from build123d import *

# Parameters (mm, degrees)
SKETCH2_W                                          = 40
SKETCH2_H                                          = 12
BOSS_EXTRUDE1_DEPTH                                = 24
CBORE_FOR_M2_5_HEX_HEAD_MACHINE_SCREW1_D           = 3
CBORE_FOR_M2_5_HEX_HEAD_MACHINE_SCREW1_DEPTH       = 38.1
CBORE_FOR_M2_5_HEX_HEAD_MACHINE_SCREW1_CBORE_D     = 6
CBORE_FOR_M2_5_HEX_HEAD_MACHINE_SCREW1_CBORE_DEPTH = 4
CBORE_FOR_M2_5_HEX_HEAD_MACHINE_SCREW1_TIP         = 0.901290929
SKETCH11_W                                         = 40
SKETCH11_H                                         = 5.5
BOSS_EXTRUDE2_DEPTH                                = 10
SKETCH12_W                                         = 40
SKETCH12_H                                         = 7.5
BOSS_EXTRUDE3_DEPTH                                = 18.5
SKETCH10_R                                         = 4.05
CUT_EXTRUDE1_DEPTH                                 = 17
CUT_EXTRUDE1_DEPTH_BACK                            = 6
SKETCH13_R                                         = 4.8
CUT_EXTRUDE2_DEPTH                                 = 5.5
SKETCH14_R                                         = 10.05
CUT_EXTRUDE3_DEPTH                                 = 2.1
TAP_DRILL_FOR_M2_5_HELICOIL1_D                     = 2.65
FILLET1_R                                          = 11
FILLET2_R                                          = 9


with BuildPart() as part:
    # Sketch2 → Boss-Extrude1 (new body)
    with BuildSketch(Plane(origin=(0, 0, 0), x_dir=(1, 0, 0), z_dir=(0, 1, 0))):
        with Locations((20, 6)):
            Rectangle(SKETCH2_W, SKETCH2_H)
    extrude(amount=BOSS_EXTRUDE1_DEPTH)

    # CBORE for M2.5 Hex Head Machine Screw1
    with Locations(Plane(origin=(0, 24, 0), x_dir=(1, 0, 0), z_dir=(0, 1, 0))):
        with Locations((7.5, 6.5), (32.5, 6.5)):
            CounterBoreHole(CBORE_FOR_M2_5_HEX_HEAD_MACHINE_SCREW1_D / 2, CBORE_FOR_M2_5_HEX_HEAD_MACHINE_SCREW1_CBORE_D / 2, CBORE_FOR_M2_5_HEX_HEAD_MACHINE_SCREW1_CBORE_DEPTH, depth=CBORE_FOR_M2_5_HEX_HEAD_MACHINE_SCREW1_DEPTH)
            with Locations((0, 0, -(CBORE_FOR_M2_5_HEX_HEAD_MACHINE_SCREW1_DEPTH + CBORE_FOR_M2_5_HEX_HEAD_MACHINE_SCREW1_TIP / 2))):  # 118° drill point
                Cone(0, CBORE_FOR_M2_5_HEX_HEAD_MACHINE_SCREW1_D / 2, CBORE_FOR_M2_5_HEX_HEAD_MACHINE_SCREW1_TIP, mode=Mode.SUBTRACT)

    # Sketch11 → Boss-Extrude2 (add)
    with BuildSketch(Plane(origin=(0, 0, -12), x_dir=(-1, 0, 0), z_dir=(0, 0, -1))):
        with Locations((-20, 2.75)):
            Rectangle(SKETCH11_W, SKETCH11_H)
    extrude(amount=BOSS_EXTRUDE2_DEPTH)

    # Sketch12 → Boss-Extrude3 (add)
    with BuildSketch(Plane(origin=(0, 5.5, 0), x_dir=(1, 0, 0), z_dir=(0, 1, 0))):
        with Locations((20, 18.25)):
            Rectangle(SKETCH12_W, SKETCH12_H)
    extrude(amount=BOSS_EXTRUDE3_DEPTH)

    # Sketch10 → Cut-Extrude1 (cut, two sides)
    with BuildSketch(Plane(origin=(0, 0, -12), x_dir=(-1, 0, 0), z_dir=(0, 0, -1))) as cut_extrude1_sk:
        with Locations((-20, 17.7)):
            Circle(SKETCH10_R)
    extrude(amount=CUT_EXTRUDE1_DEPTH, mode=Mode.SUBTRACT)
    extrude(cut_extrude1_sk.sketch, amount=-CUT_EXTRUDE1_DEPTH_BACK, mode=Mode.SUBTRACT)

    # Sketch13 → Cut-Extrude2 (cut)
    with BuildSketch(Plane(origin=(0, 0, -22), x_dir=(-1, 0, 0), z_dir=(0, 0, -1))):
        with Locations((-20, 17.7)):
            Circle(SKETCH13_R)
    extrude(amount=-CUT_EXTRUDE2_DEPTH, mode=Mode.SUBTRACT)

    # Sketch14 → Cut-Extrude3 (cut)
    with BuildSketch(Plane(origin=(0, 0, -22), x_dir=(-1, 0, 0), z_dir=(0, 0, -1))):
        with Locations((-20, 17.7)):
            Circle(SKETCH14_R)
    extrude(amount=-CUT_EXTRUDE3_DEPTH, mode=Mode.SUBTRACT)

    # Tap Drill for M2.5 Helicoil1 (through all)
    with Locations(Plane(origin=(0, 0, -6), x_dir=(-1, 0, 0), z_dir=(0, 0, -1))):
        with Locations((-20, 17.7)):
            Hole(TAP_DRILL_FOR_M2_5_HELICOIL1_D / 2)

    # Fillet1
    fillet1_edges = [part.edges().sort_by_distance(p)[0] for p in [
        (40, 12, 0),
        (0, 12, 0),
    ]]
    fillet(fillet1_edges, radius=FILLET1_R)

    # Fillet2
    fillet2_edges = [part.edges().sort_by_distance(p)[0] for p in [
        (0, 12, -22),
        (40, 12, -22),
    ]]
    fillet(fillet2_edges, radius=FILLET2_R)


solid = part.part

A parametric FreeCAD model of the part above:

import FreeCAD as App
import Part
import Sketcher


def edges_at(feature, points):
    """Names of the edges that pass closest to the given points."""
    edges = feature.Shape.Edges
    near = lambda p: min(range(len(edges)), key=lambda i: edges[i].distToShape(Part.Vertex(*p))[0])
    return sorted({f"Edge{near(p) + 1}" for p in points})

doc = App.newDocument("Part")
params = doc.addObject("Spreadsheet::Sheet", "Params")
for row, (alias, value) in enumerate([
    ("sketch1_width", "40 mm"),
    ("sketch1_height", "12 mm"),
    ("pad1_length", "24 mm"),
    ("sketch2_diameter", "3 mm"),
    ("hole_diameter", "3 mm"),
    ("hole_depth", "38.1 mm"),
    ("hole_cbore_diameter", "6 mm"),
    ("hole_cbore_depth", "4 mm"),
    ("sketch3_width", "40 mm"),
    ("sketch3_height", "5.5 mm"),
    ("pad2_length", "10 mm"),
    ("sketch4_width", "40 mm"),
    ("sketch4_height", "7.5 mm"),
    ("pad3_length", "18.5 mm"),
    ("sketch5_diameter", "8.1 mm"),
    ("pocket1_length", "17 mm"),
    ("pocket1_length2", "6 mm"),
    ("sketch6_diameter", "9.6 mm"),
    ("pocket2_length", "5.5 mm"),
    ("sketch7_diameter", "20.1 mm"),
    ("pocket3_length", "2.1 mm"),
    ("sketch8_diameter", "2.65 mm"),
    ("hole2_diameter", "2.65 mm"),
    ("fillet_radius", "11 mm"),
    ("fillet2_radius", "9 mm"),
], start=1):
    params.set(f"A{row}", alias)
    params.set(f"B{row}", "=" + value)
    params.setAlias(f"B{row}", alias)

body = doc.addObject("PartDesign::Body", "Body")

# Sketch on XZ plane
sketch1 = doc.addObject("Sketcher::SketchObject", "Sketch")
body.addObject(sketch1)
sketch1.AttachmentSupport = (doc.XZ_Plane, [""])
sketch1.MapMode = "FlatFace"
sketch1.addGeometry([
    Part.LineSegment(App.Vector(0, -12, 0), App.Vector(0, 0, 0)),
    Part.LineSegment(App.Vector(0, 0, 0), App.Vector(40, 0, 0)),
    Part.LineSegment(App.Vector(40, 0, 0), App.Vector(40, -12, 0)),
    Part.LineSegment(App.Vector(40, -12, 0), App.Vector(0, -12, 0)),
], False)
sketch1.addConstraint([
    Sketcher.Constraint("Coincident", 0, 2, 1, 1),
    Sketcher.Constraint("Coincident", 1, 2, 2, 1),
    Sketcher.Constraint("Coincident", 2, 2, 3, 1),
    Sketcher.Constraint("Coincident", 3, 2, 0, 1),
    Sketcher.Constraint("Vertical", 0),
    Sketcher.Constraint("Horizontal", 1),
    Sketcher.Constraint("Vertical", 2),
    Sketcher.Constraint("Horizontal", 3),
    Sketcher.Constraint("Coincident", 0, 2, -1, 1),
    Sketcher.Constraint("DistanceX", 1, 1, 1, 2, 40.0),
    Sketcher.Constraint("DistanceY", 0, 1, 0, 2, 12.0),
])
sketch1.setExpression("Constraints[9]", "Params.sketch1_width")
sketch1.setExpression("Constraints[10]", "Params.sketch1_height")
pad1 = doc.addObject("PartDesign::Pad", "Pad")
body.addObject(pad1)
pad1.Profile = sketch1
pad1.setExpression("Length", "Params.pad1_length")
pad1.Reversed = True

# Sketch on XZ plane
sketch2 = doc.addObject("Sketcher::SketchObject", "Sketch001")
body.addObject(sketch2)
sketch2.AttachmentSupport = (doc.XZ_Plane, [""])
sketch2.MapMode = "FlatFace"
sketch2.AttachmentOffset = App.Placement(App.Vector(0, 0, -24), App.Rotation())
sketch2.addGeometry([
    Part.Circle(App.Vector(7.5, -6.5, 0), App.Vector(0, 0, 1), 1.5),
    Part.Circle(App.Vector(32.5, -6.5, 0), App.Vector(0, 0, 1), 1.5),
], False)
sketch2.addConstraint([
    Sketcher.Constraint("Equal", 0, 1),
    Sketcher.Constraint("Horizontal", 0, 3, 1, 3),
    Sketcher.Constraint("Diameter", 0, 3.0),
    Sketcher.Constraint("DistanceX", 0, 3, 1, 3, 25.0),
    Sketcher.Constraint("DistanceX", -1, 1, 0, 3, 7.5),
    Sketcher.Constraint("DistanceY", 0, 3, -1, 1, 6.5),
])
sketch2.setExpression("Constraints[2]", "Params.sketch2_diameter")
doc.recompute()
hole = doc.addObject("PartDesign::Hole", "Hole")
body.addObject(hole)
hole.Profile = sketch2
hole.ThreadType = "None"
hole.setExpression("Diameter", "Params.hole_diameter")
hole.DepthType = "Dimension"
hole.setExpression("Depth", "Params.hole_depth")
hole.DrillPoint = "Angled"
hole.DrillPointAngle = 118
hole.HoleCutType = "Counterbore"
hole.setExpression("HoleCutDiameter", "Params.hole_cbore_diameter")
hole.setExpression("HoleCutDepth", "Params.hole_cbore_depth")
hole.Reversed = True

# Sketch on XY plane
sketch3 = doc.addObject("Sketcher::SketchObject", "Sketch002")
body.addObject(sketch3)
sketch3.AttachmentSupport = (doc.XY_Plane, [""])
sketch3.MapMode = "FlatFace"
sketch3.AttachmentOffset = App.Placement(App.Vector(0, 0, -12), App.Rotation())
sketch3.addGeometry([
    Part.LineSegment(App.Vector(40, 6, 0), App.Vector(40, 0, 0)),
    Part.LineSegment(App.Vector(40, 0, 0), App.Vector(0, 0, 0)),
    Part.LineSegment(App.Vector(0, 0, 0), App.Vector(0, 6, 0)),
    Part.LineSegment(App.Vector(0, 6, 0), App.Vector(40, 6, 0)),
], False)
sketch3.addConstraint([
    Sketcher.Constraint("Coincident", 0, 2, 1, 1),
    Sketcher.Constraint("Coincident", 1, 2, 2, 1),
    Sketcher.Constraint("Coincident", 2, 2, 3, 1),
    Sketcher.Constraint("Coincident", 3, 2, 0, 1),
    Sketcher.Constraint("Vertical", 0),
    Sketcher.Constraint("Horizontal", 1),
    Sketcher.Constraint("Vertical", 2),
    Sketcher.Constraint("Horizontal", 3),
    Sketcher.Constraint("Coincident", 1, 2, -1, 1),
    Sketcher.Constraint("DistanceX", 1, 2, 1, 1, 40.0),
    Sketcher.Constraint("DistanceY", 0, 2, 0, 1, 5.5),
])
sketch3.setExpression("Constraints[9]", "Params.sketch3_width")
sketch3.setExpression("Constraints[10]", "Params.sketch3_height")
pad2 = doc.addObject("PartDesign::Pad", "Pad001")
body.addObject(pad2)
pad2.Profile = sketch3
pad2.setExpression("Length", "Params.pad2_length")
pad2.Reversed = True

# Sketch on XZ plane
sketch4 = doc.addObject("Sketcher::SketchObject", "Sketch003")
body.addObject(sketch4)
sketch4.AttachmentSupport = (doc.XZ_Plane, [""])
sketch4.MapMode = "FlatFace"
sketch4.AttachmentOffset = App.Placement(App.Vector(0, 0, -5.5), App.Rotation())
sketch4.addGeometry([
    Part.LineSegment(App.Vector(0, -22, 0), App.Vector(0, -14, 0)),
    Part.LineSegment(App.Vector(0, -14, 0), App.Vector(40, -14, 0)),
    Part.LineSegment(App.Vector(40, -14, 0), App.Vector(40, -22, 0)),
    Part.LineSegment(App.Vector(40, -22, 0), App.Vector(0, -22, 0)),
], False)
sketch4.addConstraint([
    Sketcher.Constraint("Coincident", 0, 2, 1, 1),
    Sketcher.Constraint("Coincident", 1, 2, 2, 1),
    Sketcher.Constraint("Coincident", 2, 2, 3, 1),
    Sketcher.Constraint("Coincident", 3, 2, 0, 1),
    Sketcher.Constraint("Vertical", 0),
    Sketcher.Constraint("Horizontal", 1),
    Sketcher.Constraint("Vertical", 2),
    Sketcher.Constraint("Horizontal", 3),
    Sketcher.Constraint("PointOnObject", 0, 2, -2),
    Sketcher.Constraint("DistanceX", 1, 1, 1, 2, 40.0),
    Sketcher.Constraint("DistanceY", 0, 1, 0, 2, 7.5),
    Sketcher.Constraint("DistanceY", 2, 2, -1, 1, 22.0),
])
sketch4.setExpression("Constraints[9]", "Params.sketch4_width")
sketch4.setExpression("Constraints[10]", "Params.sketch4_height")
pad3 = doc.addObject("PartDesign::Pad", "Pad002")
body.addObject(pad3)
pad3.Profile = sketch4
pad3.setExpression("Length", "Params.pad3_length")
pad3.Reversed = True

# Sketch on XY plane
sketch5 = doc.addObject("Sketcher::SketchObject", "Sketch004")
body.addObject(sketch5)
sketch5.AttachmentSupport = (doc.XY_Plane, [""])
sketch5.MapMode = "FlatFace"
sketch5.AttachmentOffset = App.Placement(App.Vector(0, 0, -12), App.Rotation())
sketch5.addGeometry(Part.Circle(App.Vector(20, 17.7, 0), App.Vector(0, 0, 1), 4), False)
sketch5.addConstraint([
    Sketcher.Constraint("Diameter", 0, 8.1),
    Sketcher.Constraint("DistanceX", -1, 1, 0, 3, 20.0),
    Sketcher.Constraint("DistanceY", -1, 1, 0, 3, 17.7),
])
sketch5.setExpression("Constraints[0]", "Params.sketch5_diameter")
pocket1 = doc.addObject("PartDesign::Pocket", "Pocket")
body.addObject(pocket1)
pocket1.Profile = sketch5
pocket1.Type = "TwoLengths"
pocket1.setExpression("Length", "Params.pocket1_length")
pocket1.setExpression("Length2", "Params.pocket1_length2")

# Sketch on XY plane
sketch6 = doc.addObject("Sketcher::SketchObject", "Sketch005")
body.addObject(sketch6)
sketch6.AttachmentSupport = (doc.XY_Plane, [""])
sketch6.MapMode = "FlatFace"
sketch6.AttachmentOffset = App.Placement(App.Vector(0, 0, -22), App.Rotation())
sketch6.addGeometry(Part.Circle(App.Vector(20, 17.7, 0), App.Vector(0, 0, 1), 4.8), False)
sketch6.addConstraint([
    Sketcher.Constraint("Diameter", 0, 9.6),
    Sketcher.Constraint("DistanceX", -1, 1, 0, 3, 20.0),
    Sketcher.Constraint("DistanceY", -1, 1, 0, 3, 17.7),
])
sketch6.setExpression("Constraints[0]", "Params.sketch6_diameter")
pocket2 = doc.addObject("PartDesign::Pocket", "Pocket001")
body.addObject(pocket2)
pocket2.Profile = sketch6
pocket2.setExpression("Length", "Params.pocket2_length")
pocket2.Reversed = True

# Sketch on XY plane
sketch7 = doc.addObject("Sketcher::SketchObject", "Sketch006")
body.addObject(sketch7)
sketch7.AttachmentSupport = (doc.XY_Plane, [""])
sketch7.MapMode = "FlatFace"
sketch7.AttachmentOffset = App.Placement(App.Vector(0, 0, -22), App.Rotation())
sketch7.addGeometry(Part.Circle(App.Vector(20, 18, 0), App.Vector(0, 0, 1), 10), False)
sketch7.addConstraint([
    Sketcher.Constraint("Diameter", 0, 20.1),
    Sketcher.Constraint("DistanceX", -1, 1, 0, 3, 20.0),
    Sketcher.Constraint("DistanceY", -1, 1, 0, 3, 17.7),
])
sketch7.setExpression("Constraints[0]", "Params.sketch7_diameter")
pocket3 = doc.addObject("PartDesign::Pocket", "Pocket002")
body.addObject(pocket3)
pocket3.Profile = sketch7
pocket3.setExpression("Length", "Params.pocket3_length")
pocket3.Reversed = True

# Sketch on XY plane
sketch8 = doc.addObject("Sketcher::SketchObject", "Sketch007")
body.addObject(sketch8)
sketch8.AttachmentSupport = (doc.XY_Plane, [""])
sketch8.MapMode = "FlatFace"
sketch8.AttachmentOffset = App.Placement(App.Vector(0, 0, -6), App.Rotation())
sketch8.addGeometry(Part.Circle(App.Vector(20, 17.7, 0), App.Vector(0, 0, 1), 1.3), False)
sketch8.addConstraint([
    Sketcher.Constraint("Diameter", 0, 2.65),
    Sketcher.Constraint("DistanceX", -1, 1, 0, 3, 20.0),
    Sketcher.Constraint("DistanceY", -1, 1, 0, 3, 17.7),
])
sketch8.setExpression("Constraints[0]", "Params.sketch8_diameter")
doc.recompute()
hole2 = doc.addObject("PartDesign::Hole", "Hole001")
body.addObject(hole2)
hole2.Profile = sketch8
hole2.ThreadType = "None"
hole2.setExpression("Diameter", "Params.hole2_diameter")
hole2.DepthType = "ThroughAll"
hole2.Reversed = True
doc.recompute()

fillet = doc.addObject("PartDesign::Fillet", "Fillet")
body.addObject(fillet)
fillet.Base = (hole2, edges_at(hole2, [(40, 12, 0), (0, 12, 0)]))
fillet.setExpression("Radius", "Params.fillet_radius")
doc.recompute()

fillet2 = doc.addObject("PartDesign::Fillet", "Fillet001")
body.addObject(fillet2)
fillet2.Base = (fillet, edges_at(fillet, [(0, 12, -22), (40, 12, -22)]))
fillet2.setExpression("Radius", "Params.fillet2_radius")

doc.recompute()
